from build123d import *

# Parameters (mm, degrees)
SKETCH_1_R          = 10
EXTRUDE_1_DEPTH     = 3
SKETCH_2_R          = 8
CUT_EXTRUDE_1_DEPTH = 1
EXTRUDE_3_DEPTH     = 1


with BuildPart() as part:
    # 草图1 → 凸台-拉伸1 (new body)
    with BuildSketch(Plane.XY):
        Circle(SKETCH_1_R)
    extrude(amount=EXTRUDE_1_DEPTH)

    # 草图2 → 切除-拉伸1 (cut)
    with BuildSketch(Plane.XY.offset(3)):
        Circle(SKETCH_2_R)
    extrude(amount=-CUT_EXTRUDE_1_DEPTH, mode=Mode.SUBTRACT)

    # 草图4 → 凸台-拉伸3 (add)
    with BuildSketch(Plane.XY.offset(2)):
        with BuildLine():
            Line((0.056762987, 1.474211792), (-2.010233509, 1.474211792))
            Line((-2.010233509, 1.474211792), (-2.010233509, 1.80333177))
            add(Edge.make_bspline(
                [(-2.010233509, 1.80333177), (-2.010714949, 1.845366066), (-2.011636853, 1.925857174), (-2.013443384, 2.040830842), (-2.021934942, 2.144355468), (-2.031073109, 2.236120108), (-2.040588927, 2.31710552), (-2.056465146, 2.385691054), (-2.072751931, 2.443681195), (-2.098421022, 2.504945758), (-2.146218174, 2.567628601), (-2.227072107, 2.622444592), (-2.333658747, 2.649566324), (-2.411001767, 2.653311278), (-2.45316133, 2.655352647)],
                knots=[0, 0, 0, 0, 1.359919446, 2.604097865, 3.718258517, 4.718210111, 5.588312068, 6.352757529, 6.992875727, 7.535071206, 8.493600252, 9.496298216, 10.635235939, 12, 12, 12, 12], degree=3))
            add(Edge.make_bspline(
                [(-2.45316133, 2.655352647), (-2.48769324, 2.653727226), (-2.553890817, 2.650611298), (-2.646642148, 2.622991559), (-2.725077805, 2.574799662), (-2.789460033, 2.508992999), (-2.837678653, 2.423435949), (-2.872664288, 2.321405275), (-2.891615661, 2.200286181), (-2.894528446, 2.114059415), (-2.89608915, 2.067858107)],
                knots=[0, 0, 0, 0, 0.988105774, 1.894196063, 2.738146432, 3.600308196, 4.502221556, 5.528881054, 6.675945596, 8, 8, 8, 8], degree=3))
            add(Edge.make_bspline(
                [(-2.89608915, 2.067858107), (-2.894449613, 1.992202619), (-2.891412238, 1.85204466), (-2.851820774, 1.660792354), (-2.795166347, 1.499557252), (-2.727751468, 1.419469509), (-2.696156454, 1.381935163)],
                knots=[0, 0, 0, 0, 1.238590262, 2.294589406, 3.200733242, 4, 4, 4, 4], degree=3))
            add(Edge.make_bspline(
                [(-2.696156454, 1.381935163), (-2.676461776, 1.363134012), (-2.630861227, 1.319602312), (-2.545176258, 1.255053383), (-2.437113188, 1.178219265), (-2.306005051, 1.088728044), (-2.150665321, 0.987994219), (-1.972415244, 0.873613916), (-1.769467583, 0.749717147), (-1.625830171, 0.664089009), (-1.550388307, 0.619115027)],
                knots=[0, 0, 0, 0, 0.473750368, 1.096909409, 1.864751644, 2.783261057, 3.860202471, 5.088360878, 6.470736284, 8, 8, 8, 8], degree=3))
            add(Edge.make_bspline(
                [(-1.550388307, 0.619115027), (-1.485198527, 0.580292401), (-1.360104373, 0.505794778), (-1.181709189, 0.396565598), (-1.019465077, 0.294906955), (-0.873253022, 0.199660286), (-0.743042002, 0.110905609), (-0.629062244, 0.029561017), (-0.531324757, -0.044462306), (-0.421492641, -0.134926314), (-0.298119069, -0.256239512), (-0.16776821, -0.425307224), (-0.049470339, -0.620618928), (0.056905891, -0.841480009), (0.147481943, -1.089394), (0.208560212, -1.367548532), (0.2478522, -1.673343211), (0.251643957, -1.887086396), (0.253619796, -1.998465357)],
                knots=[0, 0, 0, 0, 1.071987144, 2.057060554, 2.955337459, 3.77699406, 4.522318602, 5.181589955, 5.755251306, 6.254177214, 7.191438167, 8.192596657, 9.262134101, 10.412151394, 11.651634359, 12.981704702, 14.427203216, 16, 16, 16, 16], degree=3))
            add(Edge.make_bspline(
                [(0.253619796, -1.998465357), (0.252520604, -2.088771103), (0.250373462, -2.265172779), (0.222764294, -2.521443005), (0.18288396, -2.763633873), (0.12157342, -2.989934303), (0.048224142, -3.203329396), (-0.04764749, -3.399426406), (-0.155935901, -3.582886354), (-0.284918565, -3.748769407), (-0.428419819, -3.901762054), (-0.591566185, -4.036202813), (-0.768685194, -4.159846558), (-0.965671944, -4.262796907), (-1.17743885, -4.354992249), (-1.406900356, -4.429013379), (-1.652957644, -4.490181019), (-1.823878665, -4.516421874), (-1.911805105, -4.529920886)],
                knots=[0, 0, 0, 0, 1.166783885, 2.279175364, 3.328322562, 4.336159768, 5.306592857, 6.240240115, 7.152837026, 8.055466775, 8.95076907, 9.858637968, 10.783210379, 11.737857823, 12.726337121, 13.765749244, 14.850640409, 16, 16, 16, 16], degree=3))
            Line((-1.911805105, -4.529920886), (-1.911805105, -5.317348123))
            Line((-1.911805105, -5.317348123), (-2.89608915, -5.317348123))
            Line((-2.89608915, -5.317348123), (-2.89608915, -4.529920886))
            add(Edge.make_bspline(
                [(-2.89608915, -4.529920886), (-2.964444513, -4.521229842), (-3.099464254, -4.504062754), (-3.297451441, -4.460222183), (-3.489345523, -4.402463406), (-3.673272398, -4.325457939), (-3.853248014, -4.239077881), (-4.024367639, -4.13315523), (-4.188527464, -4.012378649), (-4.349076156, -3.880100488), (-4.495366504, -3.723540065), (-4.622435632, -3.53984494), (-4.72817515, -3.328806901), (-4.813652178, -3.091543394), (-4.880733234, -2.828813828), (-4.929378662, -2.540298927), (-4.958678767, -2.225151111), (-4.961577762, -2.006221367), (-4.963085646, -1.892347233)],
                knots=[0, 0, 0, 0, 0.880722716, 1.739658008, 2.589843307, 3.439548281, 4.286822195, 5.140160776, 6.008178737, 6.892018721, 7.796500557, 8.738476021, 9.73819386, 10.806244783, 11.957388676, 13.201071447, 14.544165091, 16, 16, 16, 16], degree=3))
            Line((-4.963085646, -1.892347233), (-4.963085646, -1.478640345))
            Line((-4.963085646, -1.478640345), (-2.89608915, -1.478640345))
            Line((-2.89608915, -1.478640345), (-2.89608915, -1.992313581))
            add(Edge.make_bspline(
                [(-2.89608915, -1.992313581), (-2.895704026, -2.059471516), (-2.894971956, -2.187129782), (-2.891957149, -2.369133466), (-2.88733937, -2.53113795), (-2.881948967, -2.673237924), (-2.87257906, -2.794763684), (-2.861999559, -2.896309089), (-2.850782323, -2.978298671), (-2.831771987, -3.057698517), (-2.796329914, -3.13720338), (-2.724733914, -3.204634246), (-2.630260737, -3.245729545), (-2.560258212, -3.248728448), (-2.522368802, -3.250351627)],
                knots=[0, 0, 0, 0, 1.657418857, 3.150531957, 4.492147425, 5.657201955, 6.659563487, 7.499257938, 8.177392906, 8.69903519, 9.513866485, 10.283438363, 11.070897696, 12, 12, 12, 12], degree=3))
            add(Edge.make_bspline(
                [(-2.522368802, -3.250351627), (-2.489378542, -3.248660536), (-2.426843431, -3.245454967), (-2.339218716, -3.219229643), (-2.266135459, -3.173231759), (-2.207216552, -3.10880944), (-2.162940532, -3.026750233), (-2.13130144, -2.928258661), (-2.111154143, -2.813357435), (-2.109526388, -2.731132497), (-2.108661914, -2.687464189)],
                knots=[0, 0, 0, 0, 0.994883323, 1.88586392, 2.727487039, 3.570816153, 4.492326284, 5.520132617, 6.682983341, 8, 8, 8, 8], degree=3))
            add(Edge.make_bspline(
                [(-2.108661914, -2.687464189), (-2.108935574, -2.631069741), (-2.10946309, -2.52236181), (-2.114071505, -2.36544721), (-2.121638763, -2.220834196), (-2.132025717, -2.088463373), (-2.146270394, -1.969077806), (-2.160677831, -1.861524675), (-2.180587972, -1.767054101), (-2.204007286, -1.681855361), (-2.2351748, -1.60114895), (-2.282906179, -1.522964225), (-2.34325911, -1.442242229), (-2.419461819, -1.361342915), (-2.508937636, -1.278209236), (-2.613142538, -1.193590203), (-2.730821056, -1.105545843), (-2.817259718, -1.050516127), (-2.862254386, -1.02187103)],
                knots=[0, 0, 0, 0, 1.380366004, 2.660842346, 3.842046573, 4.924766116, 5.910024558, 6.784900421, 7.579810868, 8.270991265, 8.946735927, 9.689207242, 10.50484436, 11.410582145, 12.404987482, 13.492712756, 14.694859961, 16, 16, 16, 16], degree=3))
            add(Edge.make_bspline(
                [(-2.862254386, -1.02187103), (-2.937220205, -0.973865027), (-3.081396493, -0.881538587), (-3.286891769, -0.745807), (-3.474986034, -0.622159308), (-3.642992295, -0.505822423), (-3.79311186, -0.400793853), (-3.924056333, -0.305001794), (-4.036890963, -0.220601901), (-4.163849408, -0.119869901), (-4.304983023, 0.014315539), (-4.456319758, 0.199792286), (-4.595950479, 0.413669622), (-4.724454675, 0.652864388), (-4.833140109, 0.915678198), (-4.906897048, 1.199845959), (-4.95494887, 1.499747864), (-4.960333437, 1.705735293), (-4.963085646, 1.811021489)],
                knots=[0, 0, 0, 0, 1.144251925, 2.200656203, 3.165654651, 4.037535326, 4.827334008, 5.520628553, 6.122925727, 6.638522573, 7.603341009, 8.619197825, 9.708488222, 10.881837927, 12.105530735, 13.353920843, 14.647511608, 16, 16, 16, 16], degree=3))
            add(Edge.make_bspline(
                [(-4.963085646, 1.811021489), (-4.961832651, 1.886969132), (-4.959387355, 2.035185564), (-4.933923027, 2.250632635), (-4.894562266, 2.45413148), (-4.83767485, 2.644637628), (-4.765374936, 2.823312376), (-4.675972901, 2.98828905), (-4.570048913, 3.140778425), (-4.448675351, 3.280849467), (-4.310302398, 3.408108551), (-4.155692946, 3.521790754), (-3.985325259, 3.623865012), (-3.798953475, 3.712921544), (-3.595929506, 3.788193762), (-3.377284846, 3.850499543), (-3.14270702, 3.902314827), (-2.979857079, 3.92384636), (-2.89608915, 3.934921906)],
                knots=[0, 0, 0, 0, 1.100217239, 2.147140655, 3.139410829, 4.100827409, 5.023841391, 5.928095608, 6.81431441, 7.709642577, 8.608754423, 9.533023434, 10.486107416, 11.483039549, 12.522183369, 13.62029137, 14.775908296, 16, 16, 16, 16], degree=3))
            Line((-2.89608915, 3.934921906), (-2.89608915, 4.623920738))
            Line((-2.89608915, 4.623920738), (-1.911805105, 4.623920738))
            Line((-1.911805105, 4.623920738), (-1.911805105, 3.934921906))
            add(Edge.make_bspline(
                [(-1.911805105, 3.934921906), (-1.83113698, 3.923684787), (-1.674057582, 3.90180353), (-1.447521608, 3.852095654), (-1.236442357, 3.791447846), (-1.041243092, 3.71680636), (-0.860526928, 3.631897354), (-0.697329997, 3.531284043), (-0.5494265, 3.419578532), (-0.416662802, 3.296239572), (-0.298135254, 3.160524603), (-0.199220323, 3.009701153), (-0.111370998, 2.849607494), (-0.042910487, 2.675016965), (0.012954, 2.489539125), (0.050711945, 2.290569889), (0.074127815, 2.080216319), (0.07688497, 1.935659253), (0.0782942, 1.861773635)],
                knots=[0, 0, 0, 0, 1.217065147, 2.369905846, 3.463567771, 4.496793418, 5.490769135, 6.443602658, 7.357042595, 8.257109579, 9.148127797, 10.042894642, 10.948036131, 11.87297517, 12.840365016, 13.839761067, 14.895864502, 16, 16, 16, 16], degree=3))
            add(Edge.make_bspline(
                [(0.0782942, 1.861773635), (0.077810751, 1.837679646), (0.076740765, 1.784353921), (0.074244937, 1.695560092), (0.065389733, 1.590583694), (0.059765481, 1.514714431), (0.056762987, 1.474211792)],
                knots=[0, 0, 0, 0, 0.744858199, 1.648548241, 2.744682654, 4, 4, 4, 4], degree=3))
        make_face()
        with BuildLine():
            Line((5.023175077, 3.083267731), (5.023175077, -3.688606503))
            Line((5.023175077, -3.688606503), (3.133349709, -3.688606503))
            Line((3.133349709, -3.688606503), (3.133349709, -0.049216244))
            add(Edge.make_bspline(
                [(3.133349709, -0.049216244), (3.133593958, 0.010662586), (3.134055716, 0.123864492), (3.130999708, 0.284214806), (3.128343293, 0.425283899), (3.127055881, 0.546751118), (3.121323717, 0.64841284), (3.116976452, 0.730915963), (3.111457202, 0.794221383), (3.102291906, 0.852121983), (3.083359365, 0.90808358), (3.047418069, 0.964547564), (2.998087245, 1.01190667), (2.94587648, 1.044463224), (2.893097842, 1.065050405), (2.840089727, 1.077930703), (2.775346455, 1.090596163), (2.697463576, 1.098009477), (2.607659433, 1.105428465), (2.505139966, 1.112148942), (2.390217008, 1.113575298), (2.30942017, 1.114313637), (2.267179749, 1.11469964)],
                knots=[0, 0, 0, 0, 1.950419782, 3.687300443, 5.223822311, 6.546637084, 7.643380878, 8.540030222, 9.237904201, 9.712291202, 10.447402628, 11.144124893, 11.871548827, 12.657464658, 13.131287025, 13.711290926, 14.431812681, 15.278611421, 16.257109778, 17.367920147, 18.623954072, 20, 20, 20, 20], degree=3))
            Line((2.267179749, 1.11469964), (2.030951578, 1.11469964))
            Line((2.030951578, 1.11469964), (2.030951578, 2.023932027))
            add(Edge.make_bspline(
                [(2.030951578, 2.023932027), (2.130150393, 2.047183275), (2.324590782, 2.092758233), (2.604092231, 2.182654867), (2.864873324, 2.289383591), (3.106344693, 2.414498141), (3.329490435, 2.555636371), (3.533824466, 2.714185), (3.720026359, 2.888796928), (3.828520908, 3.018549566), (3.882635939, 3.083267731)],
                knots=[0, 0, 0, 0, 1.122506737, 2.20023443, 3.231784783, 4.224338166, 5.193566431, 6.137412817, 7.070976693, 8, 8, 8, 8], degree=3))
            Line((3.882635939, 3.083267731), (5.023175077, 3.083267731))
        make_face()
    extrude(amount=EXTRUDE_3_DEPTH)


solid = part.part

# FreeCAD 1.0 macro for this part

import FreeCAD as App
import Part
import Sketcher
Q = App.Units.Quantity

doc = App.newDocument("Part")
params = doc.addObject("Spreadsheet::Sheet", "Params")
for row, (alias, value) in enumerate([
    ("sketch1_diameter", "20 mm"),
    ("pad1_length", "3 mm"),
    ("sketch2_diameter", "16 mm"),
    ("pocket1_length", "1 mm"),
    ("pad2_length", "1 mm"),
], start=1):
    params.set(f"A{row}", alias)
    params.set(f"B{row}", "=" + value)
    params.setAlias(f"B{row}", alias)

body = doc.addObject("PartDesign::Body", "Body")

sketch1 = body.newObject("Sketcher::SketchObject", "Sketch")
sketch1.AttachmentSupport = (doc.getObject("XY_Plane"), [""])
sketch1.MapMode = "FlatFace"
sketch1.addGeometry(Part.Circle(App.Vector(0, 0, 0), App.Vector(0, 0, 1), 10), False)
sketch1.addConstraint(Sketcher.Constraint("Coincident", 0, 3, -1, 1))
sketch1.addConstraint(Sketcher.Constraint("Diameter", 0, Q("20 mm")))
sketch1.setExpression("Constraints[1]", "Params.sketch1_diameter")
pad1 = body.newObject("PartDesign::Pad", "Pad")
pad1.Profile = sketch1
pad1.setExpression("Length", "Params.pad1_length")

sketch2 = body.newObject("Sketcher::SketchObject", "Sketch001")
sketch2.AttachmentSupport = (doc.getObject("XY_Plane"), [""])
sketch2.MapMode = "FlatFace"
sketch2.AttachmentOffset = App.Placement(App.Vector(0, 0, 3), App.Rotation())
sketch2.addGeometry(Part.Circle(App.Vector(0, 0, 0), App.Vector(0, 0, 1), 8), False)
sketch2.addConstraint(Sketcher.Constraint("Coincident", 0, 3, -1, 1))
sketch2.addConstraint(Sketcher.Constraint("Diameter", 0, Q("16 mm")))
sketch2.setExpression("Constraints[1]", "Params.sketch2_diameter")
pocket1 = body.newObject("PartDesign::Pocket", "Pocket")
pocket1.Profile = sketch2
pocket1.setExpression("Length", "Params.pocket1_length")

sketch3 = body.newObject("Sketcher::SketchObject", "Sketch002")
sketch3.AttachmentSupport = (doc.getObject("XY_Plane"), [""])
sketch3.MapMode = "FlatFace"
sketch3.AttachmentOffset = App.Placement(App.Vector(0, 0, 2), App.Rotation())
sketch3.addGeometry(Part.LineSegment(App.Vector(-2.010234, 1.474212, 0), App.Vector(0.056763, 1.474212, 0)), False)
sketch3.addGeometry(Part.BSplineCurve([App.Vector(0.078294, 1.861774, 0), App.Vector(0.077811, 1.83768, 0), App.Vector(0.076741, 1.784354, 0), App.Vector(0.074245, 1.69556, 0), App.Vector(0.06539, 1.590584, 0), App.Vector(0.059765, 1.514714, 0), App.Vector(0.056763, 1.474212, 0)], [4, 1, 1, 1, 4], [0, 0.744858199, 1.648548241, 2.744682654, 4], False, 3, [1, 1, 1, 1, 1, 1, 1], False), False)
sketch3.addGeometry(Part.BSplineCurve([App.Vector(-1.911805, 3.934922, 0), App.Vector(-1.831137, 3.923685, 0), App.Vector(-1.674058, 3.901804, 0), App.Vector(-1.447522, 3.852096, 0), App.Vector(-1.236442, 3.791448, 0), App.Vector(-1.041243, 3.716806, 0), App.Vector(-0.860527, 3.631897, 0), App.Vector(-0.69733, 3.531284, 0), App.Vector(-0.549427, 3.419579, 0), App.Vector(-0.416663, 3.29624, 0), App.Vector(-0.298135, 3.160525, 0), App.Vector(-0.19922, 3.009701, 0), App.Vector(-0.111371, 2.849607, 0), App.Vector(-0.04291, 2.675017, 0), App.Vector(0.012954, 2.489539, 0), App.Vector(0.050712, 2.29057, 0), App.Vector(0.074128, 2.080216, 0), App.Vector(0.076885, 1.935659, 0), App.Vector(0.078294, 1.861774, 0)], [4, 1, 1, 1, 1, 1, 1, 1, 1, 1, 1, 1, 1, 1, 1, 1, 4], [0, 1.217065147, 2.369905846, 3.463567771, 4.496793418, 5.490769135, 6.443602658, 7.357042595, 8.257109579, 9.148127797, 10.042894642, 10.948036131, 11.87297517, 12.840365016, 13.839761067, 14.895864502, 16], False, 3, [1, 1, 1, 1, 1, 1, 1, 1, 1, 1, 1, 1, 1, 1, 1, 1, 1, 1, 1], False), False)
sketch3.addGeometry(Part.LineSegment(App.Vector(-1.911805, 3.934922, 0), App.Vector(-1.911805, 4.623921, 0)), False)
sketch3.addGeometry(Part.LineSegment(App.Vector(-1.911805, 4.623921, 0), App.Vector(-2.896089, 4.623921, 0)), False)
sketch3.addGeometry(Part.LineSegment(App.Vector(-2.896089, 4.623921, 0), App.Vector(-2.896089, 3.934922, 0)), False)
sketch3.addGeometry(Part.BSplineCurve([App.Vector(-4.963086, 1.811021, 0), App.Vector(-4.961833, 1.886969, 0), App.Vector(-4.959387, 2.035186, 0), App.Vector(-4.933923, 2.250633, 0), App.Vector(-4.894562, 2.454131, 0), App.Vector(-4.837675, 2.644638, 0), App.Vector(-4.765375, 2.823312, 0), App.Vector(-4.675973, 2.988289, 0), App.Vector(-4.570049, 3.140778, 0), App.Vector(-4.448675, 3.280849, 0), App.Vector(-4.310302, 3.408109, 0), App.Vector(-4.155693, 3.521791, 0), App.Vector(-3.985325, 3.623865, 0), App.Vector(-3.798953, 3.712922, 0), App.Vector(-3.59593, 3.788194, 0), App.Vector(-3.377285, 3.8505, 0), App.Vector(-3.142707, 3.902315, 0), App.Vector(-2.979857, 3.923846, 0), App.Vector(-2.896089, 3.934922, 0)], [4, 1, 1, 1, 1, 1, 1, 1, 1, 1, 1, 1, 1, 1, 1, 1, 4], [0, 1.100217239, 2.147140655, 3.139410829, 4.100827409, 5.023841391, 5.928095608, 6.81431441, 7.709642577, 8.608754423, 9.533023434, 10.486107416, 11.483039549, 12.522183369, 13.62029137, 14.775908296, 16], False, 3, [1, 1, 1, 1, 1, 1, 1, 1, 1, 1, 1, 1, 1, 1, 1, 1, 1, 1, 1], False), False)
sketch3.addGeometry(Part.BSplineCurve([App.Vector(-2.862254, -1.021871, 0), App.Vector(-2.93722, -0.973865, 0), App.Vector(-3.081396, -0.881539, 0), App.Vector(-3.286892, -0.745807, 0), App.Vector(-3.474986, -0.622159, 0), App.Vector(-3.642992, -0.505822, 0), App.Vector(-3.793112, -0.400794, 0), App.Vector(-3.924056, -0.305002, 0), App.Vector(-4.036891, -0.220602, 0), App.Vector(-4.163849, -0.11987, 0), App.Vector(-4.304983, 0.014316, 0), App.Vector(-4.45632, 0.199792, 0), App.Vector(-4.59595, 0.41367, 0), App.Vector(-4.724455, 0.652864, 0), App.Vector(-4.83314, 0.915678, 0), App.Vector(-4.906897, 1.199846, 0), App.Vector(-4.954949, 1.499748, 0), App.Vector(-4.960333, 1.705735, 0), App.Vector(-4.963086, 1.811021, 0)], [4, 1, 1, 1, 1, 1, 1, 1, 1, 1, 1, 1, 1, 1, 1, 1, 4], [0, 1.144251925, 2.200656203, 3.165654651, 4.037535326, 4.827334008, 5.520628553, 6.122925727, 6.638522573, 7.603341009, 8.619197825, 9.708488222, 10.881837927, 12.105530735, 13.353920843, 14.647511608, 16], False, 3, [1, 1, 1, 1, 1, 1, 1, 1, 1, 1, 1, 1, 1, 1, 1, 1, 1, 1, 1], False), False)
sketch3.addGeometry(Part.BSplineCurve([App.Vector(-2.108662, -2.687464, 0), App.Vector(-2.108936, -2.63107, 0), App.Vector(-2.109463, -2.522362, 0), App.Vector(-2.114072, -2.365447, 0), App.Vector(-2.121639, -2.220834, 0), App.Vector(-2.132026, -2.088463, 0), App.Vector(-2.14627, -1.969078, 0), App.Vector(-2.160678, -1.861525, 0), App.Vector(-2.180588, -1.767054, 0), App.Vector(-2.204007, -1.681855, 0), App.Vector(-2.235175, -1.601149, 0), App.Vector(-2.282906, -1.522964, 0), App.Vector(-2.343259, -1.442242, 0), App.Vector(-2.419462, -1.361343, 0), App.Vector(-2.508938, -1.278209, 0), App.Vector(-2.613143, -1.19359, 0), App.Vector(-2.730821, -1.105546, 0), App.Vector(-2.81726, -1.050516, 0), App.Vector(-2.862254, -1.021871, 0)], [4, 1, 1, 1, 1, 1, 1, 1, 1, 1, 1, 1, 1, 1, 1, 1, 4], [0, 1.380366004, 2.660842346, 3.842046573, 4.924766116, 5.910024558, 6.784900421, 7.579810868, 8.270991265, 8.946735927, 9.689207242, 10.50484436, 11.410582145, 12.404987482, 13.492712756, 14.694859961, 16], False, 3, [1, 1, 1, 1, 1, 1, 1, 1, 1, 1, 1, 1, 1, 1, 1, 1, 1, 1, 1], False), False)
sketch3.addGeometry(Part.BSplineCurve([App.Vector(-2.522369, -3.250352, 0), App.Vector(-2.489379, -3.248661, 0), App.Vector(-2.426843, -3.245455, 0), App.Vector(-2.339219, -3.21923, 0), App.Vector(-2.266135, -3.173232, 0), App.Vector(-2.207217, -3.108809, 0), App.Vector(-2.162941, -3.02675, 0), App.Vector(-2.131301, -2.928259, 0), App.Vector(-2.111154, -2.813357, 0), App.Vector(-2.109526, -2.731132, 0), App.Vector(-2.108662, -2.687464, 0)], [4, 1, 1, 1, 1, 1, 1, 1, 4], [0, 0.994883323, 1.88586392, 2.727487039, 3.570816153, 4.492326284, 5.520132617, 6.682983341, 8], False, 3, [1, 1, 1, 1, 1, 1, 1, 1, 1, 1, 1], False), False)
sketch3.addGeometry(Part.BSplineCurve([App.Vector(-2.896089, -1.992314, 0), App.Vector(-2.895704, -2.059472, 0), App.Vector(-2.894972, -2.18713, 0), App.Vector(-2.891957, -2.369133, 0), App.Vector(-2.887339, -2.531138, 0), App.Vector(-2.881949, -2.673238, 0), App.Vector(-2.872579, -2.794764, 0), App.Vector(-2.862, -2.896309, 0), App.Vector(-2.850782, -2.978299, 0), App.Vector(-2.831772, -3.057699, 0), App.Vector(-2.79633, -3.137203, 0), App.Vector(-2.724734, -3.204634, 0), App.Vector(-2.630261, -3.24573, 0), App.Vector(-2.560258, -3.248728, 0), App.Vector(-2.522369, -3.250352, 0)], [4, 1, 1, 1, 1, 1, 1, 1, 1, 1, 1, 1, 4], [0, 1.657418857, 3.150531957, 4.492147425, 5.657201955, 6.659563487, 7.499257938, 8.177392906, 8.69903519, 9.513866485, 10.283438363, 11.070897696, 12], False, 3, [1, 1, 1, 1, 1, 1, 1, 1, 1, 1, 1, 1, 1, 1, 1], False), False)
sketch3.addGeometry(Part.LineSegment(App.Vector(-2.896089, -1.992314, 0), App.Vector(-2.896089, -1.47864, 0)), False)
sketch3.addGeometry(Part.LineSegment(App.Vector(-2.896089, -1.47864, 0), App.Vector(-4.963086, -1.47864, 0)), False)
sketch3.addGeometry(Part.LineSegment(App.Vector(-4.963086, -1.47864, 0), App.Vector(-4.963086, -1.892347, 0)), False)
sketch3.addGeometry(Part.BSplineCurve([App.Vector(-2.896089, -4.529921, 0), App.Vector(-2.964445, -4.52123, 0), App.Vector(-3.099464, -4.504063, 0), App.Vector(-3.297451, -4.460222, 0), App.Vector(-3.489346, -4.402463, 0), App.Vector(-3.673272, -4.325458, 0), App.Vector(-3.853248, -4.239078, 0), App.Vector(-4.024368, -4.133155, 0), App.Vector(-4.188527, -4.012379, 0), App.Vector(-4.349076, -3.8801, 0), App.Vector(-4.495367, -3.72354, 0), App.Vector(-4.622436, -3.539845, 0), App.Vector(-4.728175, -3.328807, 0), App.Vector(-4.813652, -3.091543, 0), App.Vector(-4.880733, -2.828814, 0), App.Vector(-4.929379, -2.540299, 0), App.Vector(-4.958679, -2.225151, 0), App.Vector(-4.961578, -2.006221, 0), App.Vector(-4.963086, -1.892347, 0)], [4, 1, 1, 1, 1, 1, 1, 1, 1, 1, 1, 1, 1, 1, 1, 1, 4], [0, 0.880722716, 1.739658008, 2.589843307, 3.439548281, 4.286822195, 5.140160776, 6.008178737, 6.892018721, 7.796500557, 8.738476021, 9.73819386, 10.806244783, 11.957388676, 13.201071447, 14.544165091, 16], False, 3, [1, 1, 1, 1, 1, 1, 1, 1, 1, 1, 1, 1, 1, 1, 1, 1, 1, 1, 1], False), False)
sketch3.addGeometry(Part.LineSegment(App.Vector(-2.896089, -4.529921, 0), App.Vector(-2.896089, -5.317348, 0)), False)
sketch3.addGeometry(Part.LineSegment(App.Vector(-2.896089, -5.317348, 0), App.Vector(-1.911805, -5.317348, 0)), False)
sketch3.addGeometry(Part.LineSegment(App.Vector(-1.911805, -5.317348, 0), App.Vector(-1.911805, -4.529921, 0)), False)
sketch3.addGeometry(Part.BSplineCurve([App.Vector(0.25362, -1.998465, 0), App.Vector(0.252521, -2.088771, 0), App.Vector(0.250373, -2.265173, 0), App.Vector(0.222764, -2.521443, 0), App.Vector(0.182884, -2.763634, 0), App.Vector(0.121573, -2.989934, 0), App.Vector(0.048224, -3.203329, 0), App.Vector(-0.047647, -3.399426, 0), App.Vector(-0.155936, -3.582886, 0), App.Vector(-0.284919, -3.748769, 0), App.Vector(-0.42842, -3.901762, 0), App.Vector(-0.591566, -4.036203, 0), App.Vector(-0.768685, -4.159847, 0), App.Vector(-0.965672, -4.262797, 0), App.Vector(-1.177439, -4.354992, 0), App.Vector(-1.4069, -4.429013, 0), App.Vector(-1.652958, -4.490181, 0), App.Vector(-1.823879, -4.516422, 0), App.Vector(-1.911805, -4.529921, 0)], [4, 1, 1, 1, 1, 1, 1, 1, 1, 1, 1, 1, 1, 1, 1, 1, 4], [0, 1.166783885, 2.279175364, 3.328322562, 4.336159768, 5.306592857, 6.240240115, 7.152837026, 8.055466775, 8.95076907, 9.858637968, 10.783210379, 11.737857823, 12.726337121, 13.765749244, 14.850640409, 16], False, 3, [1, 1, 1, 1, 1, 1, 1, 1, 1, 1, 1, 1, 1, 1, 1, 1, 1, 1, 1], False), False)
sketch3.addGeometry(Part.BSplineCurve([App.Vector(-1.550388, 0.619115, 0), App.Vector(-1.485199, 0.580292, 0), App.Vector(-1.360104, 0.505795, 0), App.Vector(-1.181709, 0.396566, 0), App.Vector(-1.019465, 0.294907, 0), App.Vector(-0.873253, 0.19966, 0), App.Vector(-0.743042, 0.110906, 0), App.Vector(-0.629062, 0.029561, 0), App.Vector(-0.531325, -0.044462, 0), App.Vector(-0.421493, -0.134926, 0), App.Vector(-0.298119, -0.25624, 0), App.Vector(-0.167768, -0.425307, 0), App.Vector(-0.04947, -0.620619, 0), App.Vector(0.056906, -0.84148, 0), App.Vector(0.147482, -1.089394, 0), App.Vector(0.20856, -1.367549, 0), App.Vector(0.247852, -1.673343, 0), App.Vector(0.251644, -1.887086, 0), App.Vector(0.25362, -1.998465, 0)], [4, 1, 1, 1, 1, 1, 1, 1, 1, 1, 1, 1, 1, 1, 1, 1, 4], [0, 1.071987144, 2.057060554, 2.955337459, 3.77699406, 4.522318602, 5.181589955, 5.755251306, 6.254177214, 7.191438167, 8.192596657, 9.262134101, 10.412151394, 11.651634359, 12.981704702, 14.427203216, 16], False, 3, [1, 1, 1, 1, 1, 1, 1, 1, 1, 1, 1, 1, 1, 1, 1, 1, 1, 1, 1], False), False)
sketch3.addGeometry(Part.BSplineCurve([App.Vector(-2.696156, 1.381935, 0), App.Vector(-2.676462, 1.363134, 0), App.Vector(-2.630861, 1.319602, 0), App.Vector(-2.545176, 1.255053, 0), App.Vector(-2.437113, 1.178219, 0), App.Vector(-2.306005, 1.088728, 0), App.Vector(-2.150665, 0.987994, 0), App.Vector(-1.972415, 0.873614, 0), App.Vector(-1.769468, 0.749717, 0), App.Vector(-1.62583, 0.664089, 0), App.Vector(-1.550388, 0.619115, 0)], [4, 1, 1, 1, 1, 1, 1, 1, 4], [0, 0.473750368, 1.096909409, 1.864751644, 2.783261057, 3.860202471, 5.088360878, 6.470736284, 8], False, 3, [1, 1, 1, 1, 1, 1, 1, 1, 1, 1, 1], False), False)
sketch3.addGeometry(Part.BSplineCurve([App.Vector(-2.896089, 2.067858, 0), App.Vector(-2.89445, 1.992203, 0), App.Vector(-2.891412, 1.852045, 0), App.Vector(-2.851821, 1.660792, 0), App.Vector(-2.795166, 1.499557, 0), App.Vector(-2.727751, 1.41947, 0), App.Vector(-2.696156, 1.381935, 0)], [4, 1, 1, 1, 4], [0, 1.238590262, 2.294589406, 3.200733242, 4], False, 3, [1, 1, 1, 1, 1, 1, 1], False), False)
sketch3.addGeometry(Part.BSplineCurve([App.Vector(-2.453161, 2.655353, 0), App.Vector(-2.487693, 2.653727, 0), App.Vector(-2.553891, 2.650611, 0), App.Vector(-2.646642, 2.622992, 0), App.Vector(-2.725078, 2.5748, 0), App.Vector(-2.78946, 2.508993, 0), App.Vector(-2.837679, 2.423436, 0), App.Vector(-2.872664, 2.321405, 0), App.Vector(-2.891616, 2.200286, 0), App.Vector(-2.894528, 2.114059, 0), App.Vector(-2.896089, 2.067858, 0)], [4, 1, 1, 1, 1, 1, 1, 1, 4], [0, 0.988105774, 1.894196063, 2.738146432, 3.600308196, 4.502221556, 5.528881054, 6.675945596, 8], False, 3, [1, 1, 1, 1, 1, 1, 1, 1, 1, 1, 1], False), False)
sketch3.addGeometry(Part.BSplineCurve([App.Vector(-2.010234, 1.803332, 0), App.Vector(-2.010715, 1.845366, 0), App.Vector(-2.011637, 1.925857, 0), App.Vector(-2.013443, 2.040831, 0), App.Vector(-2.021935, 2.144355, 0), App.Vector(-2.031073, 2.23612, 0), App.Vector(-2.040589, 2.317106, 0), App.Vector(-2.056465, 2.385691, 0), App.Vector(-2.072752, 2.443681, 0), App.Vector(-2.098421, 2.504946, 0), App.Vector(-2.146218, 2.567629, 0), App.Vector(-2.227072, 2.622445, 0), App.Vector(-2.333659, 2.649566, 0), App.Vector(-2.411002, 2.653311, 0), App.Vector(-2.453161, 2.655353, 0)], [4, 1, 1, 1, 1, 1, 1, 1, 1, 1, 1, 1, 4], [0, 1.359919446, 2.604097865, 3.718258517, 4.718210111, 5.588312068, 6.352757529, 6.992875727, 7.535071206, 8.493600252, 9.496298216, 10.635235939, 12], False, 3, [1, 1, 1, 1, 1, 1, 1, 1, 1, 1, 1, 1, 1, 1, 1], False), False)
sketch3.addGeometry(Part.LineSegment(App.Vector(-2.010234, 1.803332, 0), App.Vector(-2.010234, 1.474212, 0)), False)
sketch3.addGeometry(Part.LineSegment(App.Vector(5.023175, -3.688607, 0), App.Vector(5.023175, 3.083268, 0)), False)
sketch3.addGeometry(Part.LineSegment(App.Vector(5.023175, 3.083268, 0), App.Vector(3.882636, 3.083268, 0)), False)
sketch3.addGeometry(Part.BSplineCurve([App.Vector(2.030952, 2.023932, 0), App.Vector(2.13015, 2.047183, 0), App.Vector(2.324591, 2.092758, 0), App.Vector(2.604092, 2.182655, 0), App.Vector(2.864873, 2.289384, 0), App.Vector(3.106345, 2.414498, 0), App.Vector(3.32949, 2.555636, 0), App.Vector(3.533824, 2.714185, 0), App.Vector(3.720026, 2.888797, 0), App.Vector(3.828521, 3.01855, 0), App.Vector(3.882636, 3.083268, 0)], [4, 1, 1, 1, 1, 1, 1, 1, 4], [0, 1.122506737, 2.20023443, 3.231784783, 4.224338166, 5.193566431, 6.137412817, 7.070976693, 8], False, 3, [1, 1, 1, 1, 1, 1, 1, 1, 1, 1, 1], False), False)
sketch3.addGeometry(Part.LineSegment(App.Vector(2.030952, 2.023932, 0), App.Vector(2.030952, 1.1147, 0)), False)
sketch3.addGeometry(Part.LineSegment(App.Vector(2.030952, 1.1147, 0), App.Vector(2.26718, 1.1147, 0)), False)
sketch3.addGeometry(Part.BSplineCurve([App.Vector(3.13335, -0.049216, 0), App.Vector(3.133594, 0.010663, 0), App.Vector(3.134056, 0.123864, 0), App.Vector(3.131, 0.284215, 0), App.Vector(3.128343, 0.425284, 0), App.Vector(3.127056, 0.546751, 0), App.Vector(3.121324, 0.648413, 0), App.Vector(3.116976, 0.730916, 0), App.Vector(3.111457, 0.794221, 0), App.Vector(3.102292, 0.852122, 0), App.Vector(3.083359, 0.908084, 0), App.Vector(3.047418, 0.964548, 0), App.Vector(2.998087, 1.011907, 0), App.Vector(2.945876, 1.044463, 0), App.Vector(2.893098, 1.06505, 0), App.Vector(2.84009, 1.077931, 0), App.Vector(2.775346, 1.090596, 0), App.Vector(2.697464, 1.098009, 0), App.Vector(2.607659, 1.105428, 0), App.Vector(2.50514, 1.112149, 0), App.Vector(2.390217, 1.113575, 0), App.Vector(2.30942, 1.114314, 0), App.Vector(2.26718, 1.1147, 0)], [4, 1, 1, 1, 1, 1, 1, 1, 1, 1, 1, 1, 1, 1, 1, 1, 1, 1, 1, 1, 4], [0, 1.950419782, 3.687300443, 5.223822311, 6.546637084, 7.643380878, 8.540030222, 9.237904201, 9.712291202, 10.447402628, 11.144124893, 11.871548827, 12.657464658, 13.131287025, 13.711290926, 14.431812681, 15.278611421, 16.257109778, 17.367920147, 18.623954072, 20], False, 3, [1, 1, 1, 1, 1, 1, 1, 1, 1, 1, 1, 1, 1, 1, 1, 1, 1, 1, 1, 1, 1, 1, 1], False), False)
sketch3.addGeometry(Part.LineSegment(App.Vector(3.13335, -0.049216, 0), App.Vector(3.13335, -3.688607, 0)), False)
sketch3.addGeometry(Part.LineSegment(App.Vector(3.13335, -3.688607, 0), App.Vector(5.023175, -3.688607, 0)), False)
sketch3.addConstraint(Sketcher.Constraint("Block", 1))
sketch3.addConstraint(Sketcher.Constraint("Block", 2))
sketch3.addConstraint(Sketcher.Constraint("Block", 6))
sketch3.addConstraint(Sketcher.Constraint("Block", 7))
sketch3.addConstraint(Sketcher.Constraint("Block", 8))
sketch3.addConstraint(Sketcher.Constraint("Block", 9))
sketch3.addConstraint(Sketcher.Constraint("Block", 10))
sketch3.addConstraint(Sketcher.Constraint("Block", 14))
sketch3.addConstraint(Sketcher.Constraint("Block", 18))
sketch3.addConstraint(Sketcher.Constraint("Block", 19))
sketch3.addConstraint(Sketcher.Constraint("Block", 20))
sketch3.addConstraint(Sketcher.Constraint("Block", 21))
sketch3.addConstraint(Sketcher.Constraint("Block", 22))
sketch3.addConstraint(Sketcher.Constraint("Block", 23))
sketch3.addConstraint(Sketcher.Constraint("Block", 27))
sketch3.addConstraint(Sketcher.Constraint("Block", 30))
sketch3.addConstraint(Sketcher.Constraint("Coincident", 0, 2, 1, 2))
sketch3.addConstraint(Sketcher.Constraint("Coincident", 2, 1, 3, 1))
sketch3.addConstraint(Sketcher.Constraint("Coincident", 3, 2, 4, 1))
sketch3.addConstraint(Sketcher.Constraint("Coincident", 4, 2, 5, 1))
sketch3.addConstraint(Sketcher.Constraint("Coincident", 5, 2, 6, 2))
sketch3.addConstraint(Sketcher.Constraint("Coincident", 10, 1, 11, 1))
sketch3.addConstraint(Sketcher.Constraint("Coincident", 11, 2, 12, 1))
sketch3.addConstraint(Sketcher.Constraint("Coincident", 12, 2, 13, 1))
sketch3.addConstraint(Sketcher.Constraint("Coincident", 13, 2, 14, 2))
sketch3.addConstraint(Sketcher.Constraint("Coincident", 14, 1, 15, 1))
sketch3.addConstraint(Sketcher.Constraint("Coincident", 15, 2, 16, 1))
sketch3.addConstraint(Sketcher.Constraint("Coincident", 16, 2, 17, 1))
sketch3.addConstraint(Sketcher.Constraint("Coincident", 17, 2, 18, 2))
sketch3.addConstraint(Sketcher.Constraint("Coincident", 23, 1, 24, 1))
sketch3.addConstraint(Sketcher.Constraint("Coincident", 24, 2, 0, 1))
sketch3.addConstraint(Sketcher.Constraint("Coincident", 25, 2, 26, 1))
sketch3.addConstraint(Sketcher.Constraint("Coincident", 26, 2, 27, 2))
sketch3.addConstraint(Sketcher.Constraint("Coincident", 27, 1, 28, 1))
sketch3.addConstraint(Sketcher.Constraint("Coincident", 28, 2, 29, 1))
sketch3.addConstraint(Sketcher.Constraint("Coincident", 29, 2, 30, 2))
sketch3.addConstraint(Sketcher.Constraint("Coincident", 30, 1, 31, 1))
sketch3.addConstraint(Sketcher.Constraint("Coincident", 31, 2, 32, 1))
sketch3.addConstraint(Sketcher.Constraint("Coincident", 32, 2, 25, 1))
sketch3.addConstraint(Sketcher.Constraint("Horizontal", 0))
sketch3.addConstraint(Sketcher.Constraint("Vertical", 3))
sketch3.addConstraint(Sketcher.Constraint("Horizontal", 4))
sketch3.addConstraint(Sketcher.Constraint("Vertical", 5))
sketch3.addConstraint(Sketcher.Constraint("Vertical", 11))
sketch3.addConstraint(Sketcher.Constraint("Horizontal", 12))
sketch3.addConstraint(Sketcher.Constraint("Vertical", 13))
sketch3.addConstraint(Sketcher.Constraint("Vertical", 15))
sketch3.addConstraint(Sketcher.Constraint("Horizontal", 16))
sketch3.addConstraint(Sketcher.Constraint("Vertical", 17))
sketch3.addConstraint(Sketcher.Constraint("Vertical", 24))
sketch3.addConstraint(Sketcher.Constraint("Vertical", 25))
sketch3.addConstraint(Sketcher.Constraint("Horizontal", 26))
sketch3.addConstraint(Sketcher.Constraint("Vertical", 28))
sketch3.addConstraint(Sketcher.Constraint("Horizontal", 29))
sketch3.addConstraint(Sketcher.Constraint("Vertical", 31))
sketch3.addConstraint(Sketcher.Constraint("Horizontal", 32))
sketch3.addConstraint(Sketcher.Constraint("DistanceY", 3, 1, 3, 2, Q("0.688999 mm")))
sketch3.addConstraint(Sketcher.Constraint("DistanceY", 15, 2, 13, 2, Q("3.425001 mm")))
sketch3.addConstraint(Sketcher.Constraint("DistanceX", 26, 2, 26, 1, Q("1.140539 mm")))
sketch3.addConstraint(Sketcher.Constraint("DistanceY", 31, 2, 31, 1, Q("3.63939 mm")))
sketch3.addConstraint(Sketcher.Constraint("DistanceY", 11, 1, 11, 2, Q("0.513673 mm")))
pad2 = body.newObject("PartDesign::Pad", "Pad001")
pad2.Profile = sketch3
pad2.setExpression("Length", "Params.pad2_length")

doc.recompute()
